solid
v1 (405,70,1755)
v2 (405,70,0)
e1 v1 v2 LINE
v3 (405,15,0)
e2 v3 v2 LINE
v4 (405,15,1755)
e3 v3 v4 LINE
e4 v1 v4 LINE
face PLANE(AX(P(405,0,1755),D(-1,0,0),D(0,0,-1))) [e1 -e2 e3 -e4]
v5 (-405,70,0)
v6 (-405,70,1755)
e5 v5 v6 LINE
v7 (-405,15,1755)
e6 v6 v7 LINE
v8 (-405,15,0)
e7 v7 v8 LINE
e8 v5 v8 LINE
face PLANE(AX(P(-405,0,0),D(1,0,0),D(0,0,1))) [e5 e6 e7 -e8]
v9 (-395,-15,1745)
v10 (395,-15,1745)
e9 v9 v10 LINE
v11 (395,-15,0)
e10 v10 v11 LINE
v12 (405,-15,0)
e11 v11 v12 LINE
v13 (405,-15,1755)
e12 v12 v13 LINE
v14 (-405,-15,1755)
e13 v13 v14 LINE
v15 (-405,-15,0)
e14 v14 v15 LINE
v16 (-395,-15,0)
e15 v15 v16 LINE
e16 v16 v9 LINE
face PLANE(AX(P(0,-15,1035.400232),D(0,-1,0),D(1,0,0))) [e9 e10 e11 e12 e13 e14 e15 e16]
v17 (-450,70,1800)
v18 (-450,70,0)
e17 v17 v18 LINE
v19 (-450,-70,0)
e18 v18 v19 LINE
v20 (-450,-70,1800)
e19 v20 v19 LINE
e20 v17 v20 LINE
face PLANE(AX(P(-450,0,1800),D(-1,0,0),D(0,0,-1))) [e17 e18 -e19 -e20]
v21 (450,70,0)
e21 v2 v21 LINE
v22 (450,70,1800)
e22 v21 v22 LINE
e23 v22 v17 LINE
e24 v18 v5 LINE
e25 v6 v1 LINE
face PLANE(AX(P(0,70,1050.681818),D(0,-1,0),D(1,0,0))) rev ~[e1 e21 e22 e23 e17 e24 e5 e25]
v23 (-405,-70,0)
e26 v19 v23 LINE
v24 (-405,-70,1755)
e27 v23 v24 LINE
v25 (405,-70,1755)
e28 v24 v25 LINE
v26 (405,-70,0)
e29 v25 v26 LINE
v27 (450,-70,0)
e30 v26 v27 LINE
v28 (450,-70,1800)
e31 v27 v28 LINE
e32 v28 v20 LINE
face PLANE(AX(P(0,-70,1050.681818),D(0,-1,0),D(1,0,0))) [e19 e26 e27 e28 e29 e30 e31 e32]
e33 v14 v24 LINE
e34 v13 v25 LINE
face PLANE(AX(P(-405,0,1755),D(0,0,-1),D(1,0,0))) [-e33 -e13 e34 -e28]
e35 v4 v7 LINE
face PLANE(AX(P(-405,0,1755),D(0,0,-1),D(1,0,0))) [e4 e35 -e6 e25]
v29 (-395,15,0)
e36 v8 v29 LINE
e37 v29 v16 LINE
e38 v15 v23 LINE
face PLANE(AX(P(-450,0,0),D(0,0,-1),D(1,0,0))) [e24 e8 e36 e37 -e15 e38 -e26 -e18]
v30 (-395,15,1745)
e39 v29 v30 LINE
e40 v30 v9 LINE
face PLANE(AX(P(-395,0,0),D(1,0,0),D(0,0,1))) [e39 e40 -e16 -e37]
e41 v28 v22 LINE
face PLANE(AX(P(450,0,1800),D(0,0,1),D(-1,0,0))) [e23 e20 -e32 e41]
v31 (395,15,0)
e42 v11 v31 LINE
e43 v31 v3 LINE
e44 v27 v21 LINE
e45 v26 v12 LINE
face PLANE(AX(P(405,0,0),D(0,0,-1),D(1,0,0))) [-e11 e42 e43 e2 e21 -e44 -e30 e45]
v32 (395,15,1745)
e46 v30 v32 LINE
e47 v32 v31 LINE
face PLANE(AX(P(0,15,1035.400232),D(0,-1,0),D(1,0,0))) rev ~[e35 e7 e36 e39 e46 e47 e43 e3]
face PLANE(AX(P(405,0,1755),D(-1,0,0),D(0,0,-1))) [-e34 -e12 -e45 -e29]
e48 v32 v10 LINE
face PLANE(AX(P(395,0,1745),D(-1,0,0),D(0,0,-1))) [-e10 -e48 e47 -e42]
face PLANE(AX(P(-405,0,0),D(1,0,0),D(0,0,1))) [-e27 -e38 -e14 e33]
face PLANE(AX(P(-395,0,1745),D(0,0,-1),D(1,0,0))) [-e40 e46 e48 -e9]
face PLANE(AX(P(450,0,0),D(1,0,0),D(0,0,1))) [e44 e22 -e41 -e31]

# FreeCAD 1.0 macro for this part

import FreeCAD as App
import Part
import Sketcher
Q = App.Units.Quantity


def add_polygon(sketch, points):
    """Adds a closed chain of lines whose ends are joined by coincident constraints."""
    first, n = sketch.GeometryCount, len(points)
    for a, b in zip(points, points[1:] + points[:1]):
        sketch.addGeometry(Part.LineSegment(App.Vector(*a, 0), App.Vector(*b, 0)), False)
    for i in range(n):
        sketch.addConstraint(Sketcher.Constraint("Coincident", first + i, 2, first + (i + 1) % n, 1))

doc = App.newDocument("Part")
body = doc.addObject("PartDesign::Body", "Body")

# Sketch on XZ plane
sketch1 = doc.addObject("Sketcher::SketchObject", "Sketch")
body.addObject(sketch1)
sketch1.AttachmentSupport = (doc.XZ_Plane, [""])
sketch1.MapMode = "FlatFace"
add_polygon(sketch1, [(450, 1800), (-450, 1800), (-450, 0), (-405, 0), (-405, 1755), (405, 1755), (405, 0), (450, 0)])  # lines 0-7
sketch1.addConstraint([
    Sketcher.Constraint("Horizontal", 0),
    Sketcher.Constraint("Vertical", 1),
    Sketcher.Constraint("Horizontal", 2),
    Sketcher.Constraint("Vertical", 3),
    Sketcher.Constraint("Horizontal", 4),
    Sketcher.Constraint("Vertical", 5),
    Sketcher.Constraint("Horizontal", 6),
    Sketcher.Constraint("Vertical", 7),
    Sketcher.Constraint("Symmetric", 2, 2, 5, 2, -1, 1),
    Sketcher.Constraint("Symmetric", 1, 2, 6, 2, -2),
    Sketcher.Constraint("DistanceX", 0, 2, 0, 1, Q("900 mm")),
    Sketcher.Constraint("DistanceX", 2, 1, 2, 2, Q("45 mm")),
    Sketcher.Constraint("DistanceY", 1, 2, 1, 1, Q("1800 mm")),
    Sketcher.Constraint("DistanceY", 3, 1, 3, 2, Q("1755 mm")),
])
pad1 = doc.addObject("PartDesign::Pad", "Pad")
body.addObject(pad1)
pad1.Profile = sketch1
pad1.Length = 140
pad1.Midplane = True

# Sketch on XZ plane
sketch2 = doc.addObject("Sketcher::SketchObject", "Sketch001")
body.addObject(sketch2)
sketch2.AttachmentSupport = (doc.XZ_Plane, [""])
sketch2.MapMode = "FlatFace"
add_polygon(sketch2, [(405, 1755), (-405, 1755), (-405, 0), (-395, 0), (-395, 1745), (395, 1745), (395, 0), (405, 0)])  # lines 0-7
sketch2.addConstraint([
    Sketcher.Constraint("Horizontal", 0),
    Sketcher.Constraint("Vertical", 1),
    Sketcher.Constraint("Horizontal", 2),
    Sketcher.Constraint("Vertical", 3),
    Sketcher.Constraint("Horizontal", 4),
    Sketcher.Constraint("Vertical", 5),
    Sketcher.Constraint("Horizontal", 6),
    Sketcher.Constraint("Vertical", 7),
    Sketcher.Constraint("Symmetric", 2, 2, 5, 2, -1, 1),
    Sketcher.Constraint("Symmetric", 1, 2, 6, 2, -2),
    Sketcher.Constraint("DistanceX", 0, 2, 0, 1, Q("810 mm")),
    Sketcher.Constraint("DistanceX", 2, 1, 2, 2, Q("10 mm")),
    Sketcher.Constraint("DistanceY", 1, 2, 1, 1, Q("1755 mm")),
    Sketcher.Constraint("DistanceY", 3, 1, 3, 2, Q("1745 mm")),
])
pad2 = doc.addObject("PartDesign::Pad", "Pad001")
body.addObject(pad2)
pad2.Profile = sketch2
pad2.Length = 30
pad2.Midplane = True

doc.recompute()
